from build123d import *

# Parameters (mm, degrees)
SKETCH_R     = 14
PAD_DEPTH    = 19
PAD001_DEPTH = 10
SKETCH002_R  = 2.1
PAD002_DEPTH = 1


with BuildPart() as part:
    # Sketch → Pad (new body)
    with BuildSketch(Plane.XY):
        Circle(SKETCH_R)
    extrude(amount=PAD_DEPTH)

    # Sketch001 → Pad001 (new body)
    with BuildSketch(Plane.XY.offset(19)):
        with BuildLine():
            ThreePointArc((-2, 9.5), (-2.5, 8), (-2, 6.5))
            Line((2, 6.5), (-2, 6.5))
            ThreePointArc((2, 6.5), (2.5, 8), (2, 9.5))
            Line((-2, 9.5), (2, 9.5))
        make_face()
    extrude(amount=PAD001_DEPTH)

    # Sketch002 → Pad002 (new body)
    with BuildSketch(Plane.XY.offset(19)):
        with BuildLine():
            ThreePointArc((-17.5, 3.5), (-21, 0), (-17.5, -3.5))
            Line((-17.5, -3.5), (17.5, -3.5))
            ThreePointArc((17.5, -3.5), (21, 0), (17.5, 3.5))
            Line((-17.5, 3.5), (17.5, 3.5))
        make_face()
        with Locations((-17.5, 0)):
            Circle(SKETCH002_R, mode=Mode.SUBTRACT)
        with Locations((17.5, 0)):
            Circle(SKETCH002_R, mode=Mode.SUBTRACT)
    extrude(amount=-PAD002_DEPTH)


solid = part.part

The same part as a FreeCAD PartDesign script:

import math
import FreeCAD as App
import Part
import Sketcher

V = App.Vector
Q = App.Units.Quantity

doc = App.newDocument("Part")
params = doc.addObject("Spreadsheet::Sheet", "Params")
for row, (alias, value) in enumerate([
    ("sketch1_diameter", "28 mm"),
    ("pad1_length", "19 mm"),
    ("sketch2_radius", "2.5 mm"),
    ("sketch2_width", "4 mm"),
    ("pad2_length", "10 mm"),
    ("sketch3_diameter", "4.2 mm"),
    ("sketch3_radius", "3.5 mm"),
    ("sketch3_width", "35 mm"),
    ("pad3_length", "1 mm"),
], start=1):
    params.set(f"A{row}", alias)
    params.set(f"B{row}", "=" + value)
    params.setAlias(f"B{row}", alias)

body = doc.addObject("PartDesign::Body", "Body")

# Sketch on XY plane
sketch1 = body.newObject("Sketcher::SketchObject", "Sketch")
sketch1.AttachmentSupport = (doc.getObject("XY_Plane"), [""])
sketch1.MapMode = "FlatFace"
sketch1.addGeometry(Part.Circle(V(0, 0, 0), V(0, 0, 1), 14), False)
sketch1.addConstraint([
    Sketcher.Constraint("Coincident", 0, 3, -1, 1),
    Sketcher.Constraint("Diameter", 0, Q("28 mm")),
])
sketch1.setExpression("Constraints[1]", "Params.sketch1_diameter")
pad1 = body.newObject("PartDesign::Pad", "Pad")
pad1.Profile = sketch1
pad1.setExpression("Length", "Params.pad1_length")

# Sketch on XY plane
sketch2 = body.newObject("Sketcher::SketchObject", "Sketch001")
sketch2.AttachmentSupport = (doc.getObject("XY_Plane"), [""])
sketch2.MapMode = "FlatFace"
sketch2.AttachmentOffset = App.Placement(V(0, 0, 19), App.Rotation())
sketch2.addGeometry([
    Part.ArcOfCircle(Part.Circle(V(0, 8, 0), V(0, 0, 1), 2.5), math.radians(143), math.radians(217)),
    Part.LineSegment(V(-2, 6.5, 0), V(2, 6.5, 0)),
    Part.ArcOfCircle(Part.Circle(V(0, 8, 0), V(0, 0, 1), 2.5), math.radians(-37), math.radians(37)),
    Part.LineSegment(V(2, 9.5, 0), V(-2, 9.5, 0)),
], False)
sketch2.addConstraint([
    Sketcher.Constraint("Coincident", 0, 2, 1, 1),
    Sketcher.Constraint("Coincident", 1, 2, 2, 1),
    Sketcher.Constraint("Coincident", 2, 2, 3, 1),
    Sketcher.Constraint("Coincident", 3, 2, 0, 1),
    Sketcher.Constraint("Horizontal", 1),
    Sketcher.Constraint("Horizontal", 3),
    Sketcher.Constraint("Coincident", 2, 3, 0, 3),
    Sketcher.Constraint("Equal", 0, 2),
    Sketcher.Constraint("PointOnObject", 0, 3, -2),
    Sketcher.Constraint("Vertical", 1, 2, 2, 2),
    Sketcher.Constraint("Radius", 0, Q("2.5 mm")),
    Sketcher.Constraint("DistanceX", 1, 1, 1, 2, Q("4 mm")),
    Sketcher.Constraint("DistanceY", -1, 1, 0, 3, Q("8 mm")),
])
sketch2.setExpression("Constraints[10]", "Params.sketch2_radius")
sketch2.setExpression("Constraints[11]", "Params.sketch2_width")
pad2 = body.newObject("PartDesign::Pad", "Pad001")
pad2.Profile = sketch2
pad2.setExpression("Length", "Params.pad2_length")

# Sketch on XY plane
sketch3 = body.newObject("Sketcher::SketchObject", "Sketch002")
sketch3.AttachmentSupport = (doc.getObject("XY_Plane"), [""])
sketch3.MapMode = "FlatFace"
sketch3.AttachmentOffset = App.Placement(V(0, 0, 19), App.Rotation())
sketch3.addGeometry([
    Part.ArcOfCircle(Part.Circle(V(-17.5, 0, 0), V(0, 0, 1), 3.5), math.radians(90), math.radians(270)),  # 0
    Part.LineSegment(V(-17.5, -3.5, 0), V(17.5, -3.5, 0)),  # 1
    Part.ArcOfCircle(Part.Circle(V(17.5, 0, 0), V(0, 0, 1), 3.5), math.radians(-90), math.radians(90)),  # 2
    Part.LineSegment(V(17.5, 3.5, 0), V(-17.5, 3.5, 0)),  # 3
    Part.Circle(V(-17.5, 0, 0), V(0, 0, 1), 2.1),  # 4
    Part.Circle(V(17.5, 0, 0), V(0, 0, 1), 2.1),  # 5
], False)
sketch3.addConstraint([
    Sketcher.Constraint("Tangent", 0, 2, 1, 1),
    Sketcher.Constraint("Tangent", 1, 2, 2, 1),
    Sketcher.Constraint("Tangent", 2, 2, 3, 1),
    Sketcher.Constraint("Tangent", 3, 2, 0, 1),
    Sketcher.Constraint("Horizontal", 1),
    Sketcher.Constraint("Horizontal", 3),
    Sketcher.Constraint("Coincident", 4, 3, 0, 3),
    Sketcher.Constraint("Coincident", 5, 3, 2, 3),
    Sketcher.Constraint("Equal", 4, 5),
    Sketcher.Constraint("Symmetric", 0, 3, 2, 3, -1, 1),
    Sketcher.Constraint("Diameter", 4, Q("4.2 mm")),
    Sketcher.Constraint("Radius", 0, Q("3.5 mm")),
    Sketcher.Constraint("DistanceX", 1, 1, 1, 2, Q("35 mm")),
])
sketch3.setExpression("Constraints[10]", "Params.sketch3_diameter")
sketch3.setExpression("Constraints[11]", "Params.sketch3_radius")
sketch3.setExpression("Constraints[12]", "Params.sketch3_width")
pad3 = body.newObject("PartDesign::Pad", "Pad002")
pad3.Profile = sketch3
pad3.setExpression("Length", "Params.pad3_length")
pad3.Reversed = True

doc.recompute()
